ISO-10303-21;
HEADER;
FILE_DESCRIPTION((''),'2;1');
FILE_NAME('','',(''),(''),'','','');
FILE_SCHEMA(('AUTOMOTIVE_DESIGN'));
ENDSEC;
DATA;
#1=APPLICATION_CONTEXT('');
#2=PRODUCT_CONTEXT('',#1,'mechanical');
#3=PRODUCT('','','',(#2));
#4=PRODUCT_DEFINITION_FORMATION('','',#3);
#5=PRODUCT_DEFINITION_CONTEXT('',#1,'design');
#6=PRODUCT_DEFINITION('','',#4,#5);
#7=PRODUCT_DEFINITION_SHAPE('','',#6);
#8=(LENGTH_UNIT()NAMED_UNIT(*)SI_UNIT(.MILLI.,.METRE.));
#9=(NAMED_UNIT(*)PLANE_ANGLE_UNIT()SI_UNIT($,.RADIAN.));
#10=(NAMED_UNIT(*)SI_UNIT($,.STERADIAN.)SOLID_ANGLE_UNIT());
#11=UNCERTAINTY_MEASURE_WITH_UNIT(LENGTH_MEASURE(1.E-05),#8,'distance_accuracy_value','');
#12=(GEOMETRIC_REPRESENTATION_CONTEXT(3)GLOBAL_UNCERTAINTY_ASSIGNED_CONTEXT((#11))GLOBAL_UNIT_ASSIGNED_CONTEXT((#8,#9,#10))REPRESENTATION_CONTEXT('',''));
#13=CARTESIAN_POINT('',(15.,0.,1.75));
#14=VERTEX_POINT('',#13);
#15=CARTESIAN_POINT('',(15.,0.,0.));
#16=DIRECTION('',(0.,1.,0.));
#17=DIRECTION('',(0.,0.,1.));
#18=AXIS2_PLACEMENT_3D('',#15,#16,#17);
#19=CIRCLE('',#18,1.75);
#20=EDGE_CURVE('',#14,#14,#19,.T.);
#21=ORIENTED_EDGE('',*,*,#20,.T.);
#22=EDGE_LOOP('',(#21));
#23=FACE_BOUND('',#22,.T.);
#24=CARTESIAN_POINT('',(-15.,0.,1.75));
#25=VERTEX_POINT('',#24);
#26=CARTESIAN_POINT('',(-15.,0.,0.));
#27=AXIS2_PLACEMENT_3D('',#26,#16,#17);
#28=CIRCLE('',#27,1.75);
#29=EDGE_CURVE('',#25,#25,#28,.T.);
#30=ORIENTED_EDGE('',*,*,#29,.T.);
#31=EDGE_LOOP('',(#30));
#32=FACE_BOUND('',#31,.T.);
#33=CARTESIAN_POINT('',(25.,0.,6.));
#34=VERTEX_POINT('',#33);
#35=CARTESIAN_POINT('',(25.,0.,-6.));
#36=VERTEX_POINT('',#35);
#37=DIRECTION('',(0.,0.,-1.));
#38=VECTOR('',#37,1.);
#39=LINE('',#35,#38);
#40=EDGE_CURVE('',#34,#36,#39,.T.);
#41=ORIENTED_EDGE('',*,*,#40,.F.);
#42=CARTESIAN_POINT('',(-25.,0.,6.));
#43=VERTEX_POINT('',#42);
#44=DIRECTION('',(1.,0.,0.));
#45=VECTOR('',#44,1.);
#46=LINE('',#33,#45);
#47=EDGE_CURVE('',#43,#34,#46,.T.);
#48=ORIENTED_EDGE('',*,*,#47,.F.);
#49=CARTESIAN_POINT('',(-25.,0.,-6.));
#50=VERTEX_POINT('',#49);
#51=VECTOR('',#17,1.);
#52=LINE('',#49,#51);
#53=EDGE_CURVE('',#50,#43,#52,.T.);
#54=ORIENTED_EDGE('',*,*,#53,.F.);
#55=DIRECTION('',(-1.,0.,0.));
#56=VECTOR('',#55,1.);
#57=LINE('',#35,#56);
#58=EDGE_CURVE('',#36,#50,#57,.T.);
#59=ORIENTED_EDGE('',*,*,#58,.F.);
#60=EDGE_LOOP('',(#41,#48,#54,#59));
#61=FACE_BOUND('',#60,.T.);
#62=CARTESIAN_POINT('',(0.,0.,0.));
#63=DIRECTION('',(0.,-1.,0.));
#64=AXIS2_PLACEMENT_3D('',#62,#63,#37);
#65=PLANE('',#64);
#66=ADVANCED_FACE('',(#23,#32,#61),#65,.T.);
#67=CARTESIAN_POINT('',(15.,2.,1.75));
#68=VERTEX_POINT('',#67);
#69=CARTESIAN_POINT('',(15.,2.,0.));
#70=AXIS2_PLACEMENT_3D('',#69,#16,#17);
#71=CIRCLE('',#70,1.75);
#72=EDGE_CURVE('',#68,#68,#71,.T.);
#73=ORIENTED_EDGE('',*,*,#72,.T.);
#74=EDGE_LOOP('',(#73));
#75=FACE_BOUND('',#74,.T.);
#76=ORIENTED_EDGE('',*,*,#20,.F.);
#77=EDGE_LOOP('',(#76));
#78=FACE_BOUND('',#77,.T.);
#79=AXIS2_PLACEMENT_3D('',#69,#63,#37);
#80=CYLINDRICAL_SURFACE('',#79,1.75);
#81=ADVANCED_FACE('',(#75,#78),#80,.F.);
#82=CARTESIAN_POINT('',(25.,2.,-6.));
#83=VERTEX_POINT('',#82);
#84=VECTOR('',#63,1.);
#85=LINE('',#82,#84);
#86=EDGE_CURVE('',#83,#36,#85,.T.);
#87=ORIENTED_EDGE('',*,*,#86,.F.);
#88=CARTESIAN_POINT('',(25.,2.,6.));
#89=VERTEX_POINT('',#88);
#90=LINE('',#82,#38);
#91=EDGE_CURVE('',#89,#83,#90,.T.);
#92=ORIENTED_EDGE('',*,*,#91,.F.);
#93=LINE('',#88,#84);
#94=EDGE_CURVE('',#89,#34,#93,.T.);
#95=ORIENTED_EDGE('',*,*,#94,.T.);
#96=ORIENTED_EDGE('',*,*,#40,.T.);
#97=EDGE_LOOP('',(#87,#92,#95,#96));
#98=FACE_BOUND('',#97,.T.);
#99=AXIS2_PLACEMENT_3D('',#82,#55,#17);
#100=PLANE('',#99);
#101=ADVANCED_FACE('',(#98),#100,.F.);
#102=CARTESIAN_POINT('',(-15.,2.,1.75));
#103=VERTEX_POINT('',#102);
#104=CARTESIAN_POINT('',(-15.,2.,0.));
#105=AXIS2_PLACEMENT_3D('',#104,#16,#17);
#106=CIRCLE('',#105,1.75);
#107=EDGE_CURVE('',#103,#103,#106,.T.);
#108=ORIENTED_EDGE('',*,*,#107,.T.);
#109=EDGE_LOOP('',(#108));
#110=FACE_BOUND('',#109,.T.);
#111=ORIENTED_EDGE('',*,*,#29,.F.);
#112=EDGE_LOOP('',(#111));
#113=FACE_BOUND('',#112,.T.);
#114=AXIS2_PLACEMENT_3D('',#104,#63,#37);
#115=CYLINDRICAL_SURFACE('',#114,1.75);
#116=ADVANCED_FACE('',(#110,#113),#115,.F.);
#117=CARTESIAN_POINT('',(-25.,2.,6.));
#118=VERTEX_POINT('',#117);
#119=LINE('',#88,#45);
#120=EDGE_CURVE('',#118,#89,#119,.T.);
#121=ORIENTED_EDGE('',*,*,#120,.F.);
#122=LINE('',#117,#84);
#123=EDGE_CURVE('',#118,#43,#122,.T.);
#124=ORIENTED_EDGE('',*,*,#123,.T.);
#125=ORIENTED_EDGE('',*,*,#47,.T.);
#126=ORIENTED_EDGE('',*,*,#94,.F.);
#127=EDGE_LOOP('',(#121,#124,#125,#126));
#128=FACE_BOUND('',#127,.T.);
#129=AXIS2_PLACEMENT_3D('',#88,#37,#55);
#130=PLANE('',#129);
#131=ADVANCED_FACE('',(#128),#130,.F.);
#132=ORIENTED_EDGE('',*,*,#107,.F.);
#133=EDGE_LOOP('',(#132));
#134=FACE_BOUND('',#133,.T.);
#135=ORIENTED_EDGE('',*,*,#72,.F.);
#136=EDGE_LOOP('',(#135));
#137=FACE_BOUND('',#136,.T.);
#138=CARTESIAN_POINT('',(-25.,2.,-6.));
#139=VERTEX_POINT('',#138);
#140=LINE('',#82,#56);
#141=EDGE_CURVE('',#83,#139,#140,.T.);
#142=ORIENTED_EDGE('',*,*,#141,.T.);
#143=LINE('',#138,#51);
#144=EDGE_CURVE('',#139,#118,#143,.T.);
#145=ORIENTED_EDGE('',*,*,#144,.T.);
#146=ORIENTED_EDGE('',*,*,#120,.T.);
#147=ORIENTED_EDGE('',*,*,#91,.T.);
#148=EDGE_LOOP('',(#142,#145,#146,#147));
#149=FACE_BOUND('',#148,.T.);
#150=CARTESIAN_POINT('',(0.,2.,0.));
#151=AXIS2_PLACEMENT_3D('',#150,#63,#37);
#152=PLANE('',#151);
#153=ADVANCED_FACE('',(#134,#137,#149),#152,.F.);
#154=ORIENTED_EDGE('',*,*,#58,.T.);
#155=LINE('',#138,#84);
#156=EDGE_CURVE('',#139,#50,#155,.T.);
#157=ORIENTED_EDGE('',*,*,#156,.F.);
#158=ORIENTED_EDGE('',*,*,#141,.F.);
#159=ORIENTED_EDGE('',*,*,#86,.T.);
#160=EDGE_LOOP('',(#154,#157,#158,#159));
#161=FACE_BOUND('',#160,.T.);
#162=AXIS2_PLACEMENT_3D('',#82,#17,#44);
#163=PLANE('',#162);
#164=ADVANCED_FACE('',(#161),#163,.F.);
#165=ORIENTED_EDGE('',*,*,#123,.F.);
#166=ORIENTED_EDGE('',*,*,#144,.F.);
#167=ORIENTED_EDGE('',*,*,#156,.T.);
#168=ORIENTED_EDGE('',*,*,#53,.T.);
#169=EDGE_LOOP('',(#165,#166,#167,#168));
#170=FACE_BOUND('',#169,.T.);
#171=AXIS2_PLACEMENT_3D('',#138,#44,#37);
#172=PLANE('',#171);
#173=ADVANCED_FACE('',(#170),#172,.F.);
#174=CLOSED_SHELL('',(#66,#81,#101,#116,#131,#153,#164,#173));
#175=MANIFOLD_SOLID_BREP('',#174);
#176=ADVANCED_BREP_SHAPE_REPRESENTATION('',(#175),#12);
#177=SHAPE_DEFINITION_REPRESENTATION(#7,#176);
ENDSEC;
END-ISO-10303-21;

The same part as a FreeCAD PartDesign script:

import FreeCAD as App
import Part
import Sketcher


def add_polygon(sketch, points):
    """Adds a closed chain of lines whose ends are joined by coincident constraints."""
    first, n = sketch.GeometryCount, len(points)
    for a, b in zip(points, points[1:] + points[:1]):
        sketch.addGeometry(Part.LineSegment(App.Vector(*a, 0), App.Vector(*b, 0)), False)
    for i in range(n):
        sketch.addConstraint(Sketcher.Constraint("Coincident", first + i, 2, first + (i + 1) % n, 1))

doc = App.newDocument("Part")
body = doc.addObject("PartDesign::Body", "Body")

sketch1 = body.newObject("Sketcher::SketchObject", "Sketch")
sketch1.AttachmentSupport = (doc.getObject("XZ_Plane"), [""])
sketch1.MapMode = "FlatFace"
add_polygon(sketch1, [(-25, -6), (-25, 6), (25, 6), (25, -6)])
sketch1.addGeometry(Part.Circle(App.Vector(-15, 0, 0), App.Vector(0, 0, 1), 1.8), False)
sketch1.addGeometry(Part.Circle(App.Vector(15, 0, 0), App.Vector(0, 0, 1), 1.8), False)
sketch1.addConstraint([
    Sketcher.Constraint("Vertical", 0),
    Sketcher.Constraint("Horizontal", 1),
    Sketcher.Constraint("Vertical", 2),
    Sketcher.Constraint("Horizontal", 3),
    Sketcher.Constraint("Equal", 4, 5),
    Sketcher.Constraint("Symmetric", 4, 3, 5, 3, -1, 1),
    Sketcher.Constraint("Symmetric", 0, 2, 2, 2, -1, 1),
    Sketcher.Constraint("PointOnObject", 4, 3, -1),
    Sketcher.Constraint("Diameter", 4, 3.5),
    Sketcher.Constraint("DistanceX", 1, 1, 1, 2, 50.0),
    Sketcher.Constraint("DistanceY", 0, 1, 0, 2, 12.0),
    Sketcher.Constraint("DistanceX", 4, 3, -1, 1, 15.0),
])
pad1 = body.newObject("PartDesign::Pad", "Pad")
pad1.Profile = sketch1
pad1.Length = 2
pad1.Reversed = True

doc.recompute()
